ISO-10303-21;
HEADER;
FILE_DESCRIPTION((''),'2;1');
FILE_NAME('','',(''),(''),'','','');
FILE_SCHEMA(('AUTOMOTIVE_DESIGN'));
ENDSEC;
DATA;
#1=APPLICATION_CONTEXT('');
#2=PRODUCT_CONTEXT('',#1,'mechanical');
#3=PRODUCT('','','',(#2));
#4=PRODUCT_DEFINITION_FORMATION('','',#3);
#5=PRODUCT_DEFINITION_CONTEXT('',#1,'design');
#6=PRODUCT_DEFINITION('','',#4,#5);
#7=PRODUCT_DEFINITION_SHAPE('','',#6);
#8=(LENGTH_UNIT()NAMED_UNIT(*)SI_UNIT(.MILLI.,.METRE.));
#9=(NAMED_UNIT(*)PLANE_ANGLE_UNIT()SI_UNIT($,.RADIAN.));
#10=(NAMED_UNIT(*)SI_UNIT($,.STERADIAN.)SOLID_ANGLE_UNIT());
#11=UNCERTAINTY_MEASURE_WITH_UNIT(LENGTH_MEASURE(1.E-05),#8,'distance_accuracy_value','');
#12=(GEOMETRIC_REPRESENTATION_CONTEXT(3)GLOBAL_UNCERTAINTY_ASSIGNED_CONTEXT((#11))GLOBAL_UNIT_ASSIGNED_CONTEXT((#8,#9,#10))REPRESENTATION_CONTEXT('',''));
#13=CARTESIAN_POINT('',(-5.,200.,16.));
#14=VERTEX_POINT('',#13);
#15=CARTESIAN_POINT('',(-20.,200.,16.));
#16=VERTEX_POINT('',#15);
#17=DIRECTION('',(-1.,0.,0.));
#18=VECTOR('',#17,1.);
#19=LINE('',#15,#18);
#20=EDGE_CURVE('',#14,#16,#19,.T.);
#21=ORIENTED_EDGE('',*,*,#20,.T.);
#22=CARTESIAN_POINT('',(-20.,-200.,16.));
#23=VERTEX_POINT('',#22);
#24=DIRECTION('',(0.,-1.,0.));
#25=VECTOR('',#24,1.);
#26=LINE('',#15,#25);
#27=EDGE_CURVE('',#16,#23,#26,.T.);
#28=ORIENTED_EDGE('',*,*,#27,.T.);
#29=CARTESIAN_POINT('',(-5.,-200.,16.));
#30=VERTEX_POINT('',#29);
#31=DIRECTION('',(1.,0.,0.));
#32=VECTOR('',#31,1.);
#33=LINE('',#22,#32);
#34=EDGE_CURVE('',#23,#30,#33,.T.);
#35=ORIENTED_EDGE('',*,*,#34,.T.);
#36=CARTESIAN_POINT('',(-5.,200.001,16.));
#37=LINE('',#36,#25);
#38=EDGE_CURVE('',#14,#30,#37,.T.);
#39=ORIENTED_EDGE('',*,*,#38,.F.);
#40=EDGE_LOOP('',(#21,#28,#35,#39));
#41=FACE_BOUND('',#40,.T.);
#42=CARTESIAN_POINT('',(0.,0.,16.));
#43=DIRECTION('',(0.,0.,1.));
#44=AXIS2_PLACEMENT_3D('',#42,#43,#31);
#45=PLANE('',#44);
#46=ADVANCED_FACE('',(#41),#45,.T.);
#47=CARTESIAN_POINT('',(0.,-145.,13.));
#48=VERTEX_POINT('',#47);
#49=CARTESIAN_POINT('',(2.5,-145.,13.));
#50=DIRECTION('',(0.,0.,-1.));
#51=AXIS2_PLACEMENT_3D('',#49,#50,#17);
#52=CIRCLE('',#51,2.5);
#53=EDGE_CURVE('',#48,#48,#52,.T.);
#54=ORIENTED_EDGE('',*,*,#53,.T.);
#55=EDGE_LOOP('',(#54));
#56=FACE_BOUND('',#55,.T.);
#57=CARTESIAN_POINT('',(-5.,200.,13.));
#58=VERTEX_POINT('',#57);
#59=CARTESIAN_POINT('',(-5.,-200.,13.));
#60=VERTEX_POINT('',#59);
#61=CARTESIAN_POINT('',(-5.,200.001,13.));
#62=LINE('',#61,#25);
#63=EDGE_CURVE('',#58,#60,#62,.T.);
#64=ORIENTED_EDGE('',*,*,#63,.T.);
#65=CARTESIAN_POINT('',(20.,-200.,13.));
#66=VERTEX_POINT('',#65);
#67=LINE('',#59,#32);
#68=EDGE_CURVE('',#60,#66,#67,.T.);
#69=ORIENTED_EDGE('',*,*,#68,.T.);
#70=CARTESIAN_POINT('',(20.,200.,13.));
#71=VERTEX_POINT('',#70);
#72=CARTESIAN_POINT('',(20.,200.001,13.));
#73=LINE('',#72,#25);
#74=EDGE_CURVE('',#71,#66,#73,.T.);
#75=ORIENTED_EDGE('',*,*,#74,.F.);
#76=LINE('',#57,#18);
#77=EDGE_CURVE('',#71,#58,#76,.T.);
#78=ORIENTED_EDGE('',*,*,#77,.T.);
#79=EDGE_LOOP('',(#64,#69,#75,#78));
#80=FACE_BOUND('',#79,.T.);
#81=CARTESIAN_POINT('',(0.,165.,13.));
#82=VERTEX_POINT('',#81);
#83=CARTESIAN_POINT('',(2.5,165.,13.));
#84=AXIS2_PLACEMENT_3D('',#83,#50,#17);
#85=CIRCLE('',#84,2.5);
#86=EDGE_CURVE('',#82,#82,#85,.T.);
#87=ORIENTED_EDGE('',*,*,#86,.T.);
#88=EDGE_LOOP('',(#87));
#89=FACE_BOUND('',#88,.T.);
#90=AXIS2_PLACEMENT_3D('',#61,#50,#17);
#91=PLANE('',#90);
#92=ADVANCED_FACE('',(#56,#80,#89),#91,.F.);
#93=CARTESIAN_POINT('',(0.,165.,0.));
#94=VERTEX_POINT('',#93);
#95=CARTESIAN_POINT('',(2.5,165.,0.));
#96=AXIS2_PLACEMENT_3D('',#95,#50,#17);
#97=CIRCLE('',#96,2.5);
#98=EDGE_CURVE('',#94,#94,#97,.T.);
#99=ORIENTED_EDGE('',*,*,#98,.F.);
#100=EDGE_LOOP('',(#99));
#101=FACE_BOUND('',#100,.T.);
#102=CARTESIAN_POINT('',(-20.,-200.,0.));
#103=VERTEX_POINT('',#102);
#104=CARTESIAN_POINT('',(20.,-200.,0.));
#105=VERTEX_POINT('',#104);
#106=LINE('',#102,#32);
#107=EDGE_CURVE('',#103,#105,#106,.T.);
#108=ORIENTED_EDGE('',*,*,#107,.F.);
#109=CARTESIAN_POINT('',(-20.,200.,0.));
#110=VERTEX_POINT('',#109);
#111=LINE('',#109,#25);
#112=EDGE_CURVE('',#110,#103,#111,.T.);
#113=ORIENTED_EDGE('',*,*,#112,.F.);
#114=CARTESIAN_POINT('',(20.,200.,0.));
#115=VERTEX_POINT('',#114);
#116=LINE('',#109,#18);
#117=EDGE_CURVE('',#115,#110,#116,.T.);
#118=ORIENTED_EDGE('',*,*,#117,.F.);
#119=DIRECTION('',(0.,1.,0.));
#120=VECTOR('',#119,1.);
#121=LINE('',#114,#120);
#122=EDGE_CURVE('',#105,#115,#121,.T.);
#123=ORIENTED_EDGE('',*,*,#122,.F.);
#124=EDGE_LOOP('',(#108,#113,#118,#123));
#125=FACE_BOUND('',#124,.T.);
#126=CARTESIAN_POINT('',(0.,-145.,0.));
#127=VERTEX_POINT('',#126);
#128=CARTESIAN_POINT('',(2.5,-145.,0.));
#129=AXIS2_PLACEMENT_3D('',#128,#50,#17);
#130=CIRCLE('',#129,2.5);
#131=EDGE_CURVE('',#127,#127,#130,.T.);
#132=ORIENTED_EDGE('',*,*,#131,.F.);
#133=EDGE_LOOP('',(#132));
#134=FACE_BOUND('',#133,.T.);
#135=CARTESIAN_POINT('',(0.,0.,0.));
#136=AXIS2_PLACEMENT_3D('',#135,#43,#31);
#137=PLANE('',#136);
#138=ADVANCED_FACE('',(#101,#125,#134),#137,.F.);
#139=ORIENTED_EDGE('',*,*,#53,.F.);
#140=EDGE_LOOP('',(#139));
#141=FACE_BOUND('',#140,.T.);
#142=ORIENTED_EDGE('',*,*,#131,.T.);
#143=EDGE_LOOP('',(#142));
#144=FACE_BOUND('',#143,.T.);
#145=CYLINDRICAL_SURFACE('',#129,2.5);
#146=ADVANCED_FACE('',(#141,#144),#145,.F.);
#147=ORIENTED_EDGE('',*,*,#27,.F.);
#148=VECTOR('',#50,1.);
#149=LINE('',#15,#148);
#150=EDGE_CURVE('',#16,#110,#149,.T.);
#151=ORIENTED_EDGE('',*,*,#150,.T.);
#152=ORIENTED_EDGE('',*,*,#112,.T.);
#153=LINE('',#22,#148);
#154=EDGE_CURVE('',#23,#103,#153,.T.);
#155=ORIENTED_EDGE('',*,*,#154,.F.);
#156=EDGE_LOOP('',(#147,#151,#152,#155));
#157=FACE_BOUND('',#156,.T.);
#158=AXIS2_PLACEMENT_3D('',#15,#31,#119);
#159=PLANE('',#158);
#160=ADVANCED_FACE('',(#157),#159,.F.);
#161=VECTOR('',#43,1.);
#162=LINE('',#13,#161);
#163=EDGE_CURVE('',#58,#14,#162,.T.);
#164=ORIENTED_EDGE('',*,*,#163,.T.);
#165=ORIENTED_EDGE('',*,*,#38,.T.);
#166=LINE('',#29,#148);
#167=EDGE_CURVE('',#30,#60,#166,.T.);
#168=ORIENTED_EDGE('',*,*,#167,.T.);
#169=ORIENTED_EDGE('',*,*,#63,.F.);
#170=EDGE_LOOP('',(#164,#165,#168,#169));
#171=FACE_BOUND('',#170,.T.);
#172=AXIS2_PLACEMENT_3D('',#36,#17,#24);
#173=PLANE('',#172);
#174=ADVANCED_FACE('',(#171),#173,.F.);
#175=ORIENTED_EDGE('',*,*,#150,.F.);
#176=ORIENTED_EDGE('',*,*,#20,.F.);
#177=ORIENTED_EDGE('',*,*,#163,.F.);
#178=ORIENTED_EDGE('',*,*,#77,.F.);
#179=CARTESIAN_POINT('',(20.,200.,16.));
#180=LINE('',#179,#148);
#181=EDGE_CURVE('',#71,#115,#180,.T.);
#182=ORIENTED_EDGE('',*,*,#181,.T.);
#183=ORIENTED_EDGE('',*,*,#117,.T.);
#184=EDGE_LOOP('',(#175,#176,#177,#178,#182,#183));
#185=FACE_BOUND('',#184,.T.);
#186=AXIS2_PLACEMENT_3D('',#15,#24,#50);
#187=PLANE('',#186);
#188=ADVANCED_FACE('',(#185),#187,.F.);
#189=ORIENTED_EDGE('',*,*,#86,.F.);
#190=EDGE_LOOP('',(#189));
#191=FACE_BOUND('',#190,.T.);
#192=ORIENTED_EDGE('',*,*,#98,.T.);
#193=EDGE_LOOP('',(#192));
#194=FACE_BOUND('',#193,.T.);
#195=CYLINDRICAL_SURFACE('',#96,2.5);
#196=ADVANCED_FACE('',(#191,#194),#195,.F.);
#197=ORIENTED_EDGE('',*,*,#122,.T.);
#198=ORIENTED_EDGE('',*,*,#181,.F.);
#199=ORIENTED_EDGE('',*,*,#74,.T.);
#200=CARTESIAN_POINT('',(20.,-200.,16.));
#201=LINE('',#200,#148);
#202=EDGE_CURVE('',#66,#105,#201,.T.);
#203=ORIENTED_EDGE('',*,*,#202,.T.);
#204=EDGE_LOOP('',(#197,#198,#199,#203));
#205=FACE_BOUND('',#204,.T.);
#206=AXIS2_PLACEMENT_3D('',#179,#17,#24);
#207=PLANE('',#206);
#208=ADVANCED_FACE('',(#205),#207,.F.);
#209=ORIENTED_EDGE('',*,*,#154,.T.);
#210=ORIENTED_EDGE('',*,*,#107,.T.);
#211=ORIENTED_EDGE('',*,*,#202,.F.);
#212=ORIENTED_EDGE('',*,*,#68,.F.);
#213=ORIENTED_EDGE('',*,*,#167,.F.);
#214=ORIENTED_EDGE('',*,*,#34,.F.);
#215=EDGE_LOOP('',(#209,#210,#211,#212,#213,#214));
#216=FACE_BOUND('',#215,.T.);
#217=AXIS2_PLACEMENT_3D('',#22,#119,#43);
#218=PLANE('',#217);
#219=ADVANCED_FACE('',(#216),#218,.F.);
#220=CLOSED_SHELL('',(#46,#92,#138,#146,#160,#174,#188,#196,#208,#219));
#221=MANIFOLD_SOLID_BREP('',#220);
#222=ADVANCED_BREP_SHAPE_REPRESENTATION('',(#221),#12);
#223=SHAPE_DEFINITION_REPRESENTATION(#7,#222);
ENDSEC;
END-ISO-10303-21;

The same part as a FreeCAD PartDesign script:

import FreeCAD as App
import Part
import Sketcher

doc = App.newDocument("Part")
body = doc.addObject("PartDesign::Body", "Body")

sketch1 = doc.addObject("Sketcher::SketchObject", "Sketch")
body.addObject(sketch1)
sketch1.AttachmentSupport = (doc.XY_Plane, [""])
sketch1.MapMode = "FlatFace"
sketch1.addGeometry(Part.LineSegment(App.Vector(-20, 200, 0), App.Vector(-20, -200, 0)), False)
sketch1.addGeometry(Part.LineSegment(App.Vector(-20, -200, 0), App.Vector(20, -200, 0)), False)
sketch1.addGeometry(Part.LineSegment(App.Vector(20, -200, 0), App.Vector(20, 200, 0)), False)
sketch1.addGeometry(Part.LineSegment(App.Vector(20, 200, 0), App.Vector(-20, 200, 0)), False)
sketch1.addConstraint(Sketcher.Constraint("Coincident", 0, 2, 1, 1))
sketch1.addConstraint(Sketcher.Constraint("Coincident", 1, 2, 2, 1))
sketch1.addConstraint(Sketcher.Constraint("Coincident", 2, 2, 3, 1))
sketch1.addConstraint(Sketcher.Constraint("Coincident", 3, 2, 0, 1))
sketch1.addConstraint(Sketcher.Constraint("Vertical", 0))
sketch1.addConstraint(Sketcher.Constraint("Horizontal", 1))
sketch1.addConstraint(Sketcher.Constraint("Vertical", 2))
sketch1.addConstraint(Sketcher.Constraint("Horizontal", 3))
sketch1.addConstraint(Sketcher.Constraint("Symmetric", 0, 2, 2, 2, -1, 1))
sketch1.addConstraint(Sketcher.Constraint("DistanceX", 1, 1, 1, 2, 40.0))
sketch1.addConstraint(Sketcher.Constraint("DistanceY", 0, 2, 0, 1, 400.0))
pad1 = doc.addObject("PartDesign::Pad", "Pad")
body.addObject(pad1)
pad1.Profile = sketch1
pad1.Length = 16

sketch2 = doc.addObject("Sketcher::SketchObject", "Sketch001")
body.addObject(sketch2)
sketch2.AttachmentSupport = (doc.XZ_Plane, [""])
sketch2.MapMode = "FlatFace"
sketch2.AttachmentOffset = App.Placement(App.Vector(0, 0, 200), App.Rotation())
sketch2.addGeometry(Part.LineSegment(App.Vector(-5, 16, 0), App.Vector(-5, 13, 0)), False)
sketch2.addGeometry(Part.LineSegment(App.Vector(-5, 13, 0), App.Vector(20, 13, 0)), False)
sketch2.addGeometry(Part.LineSegment(App.Vector(20, 13, 0), App.Vector(20, 16, 0)), False)
sketch2.addGeometry(Part.LineSegment(App.Vector(20, 16, 0), App.Vector(-5, 16, 0)), False)
sketch2.addConstraint(Sketcher.Constraint("Coincident", 0, 2, 1, 1))
sketch2.addConstraint(Sketcher.Constraint("Coincident", 1, 2, 2, 1))
sketch2.addConstraint(Sketcher.Constraint("Coincident", 2, 2, 3, 1))
sketch2.addConstraint(Sketcher.Constraint("Coincident", 3, 2, 0, 1))
sketch2.addConstraint(Sketcher.Constraint("Vertical", 0))
sketch2.addConstraint(Sketcher.Constraint("Horizontal", 1))
sketch2.addConstraint(Sketcher.Constraint("Vertical", 2))
sketch2.addConstraint(Sketcher.Constraint("Horizontal", 3))
sketch2.addConstraint(Sketcher.Constraint("DistanceX", 1, 1, 1, 2, 25.0))
sketch2.addConstraint(Sketcher.Constraint("DistanceY", 0, 2, 0, 1, 3.0))
sketch2.addConstraint(Sketcher.Constraint("DistanceX", 0, 2, -1, 1, 5.0))
sketch2.addConstraint(Sketcher.Constraint("DistanceY", -1, 1, 0, 2, 13.0))
pocket1 = doc.addObject("PartDesign::Pocket", "Pocket")
body.addObject(pocket1)
pocket1.Profile = sketch2
pocket1.Type = "UpToFirst"

sketch3 = doc.addObject("Sketcher::SketchObject", "Sketch002")
body.addObject(sketch3)
sketch3.AttachmentSupport = (doc.XY_Plane, [""])
sketch3.MapMode = "FlatFace"
sketch3.addGeometry(Part.Circle(App.Vector(2.5, 165, 0), App.Vector(0, 0, 1), 2.5), False)
sketch3.addGeometry(Part.Circle(App.Vector(2.5, -145, 0), App.Vector(0, 0, 1), 2.5), False)
sketch3.addConstraint(Sketcher.Constraint("Equal", 0, 1))
sketch3.addConstraint(Sketcher.Constraint("Vertical", 0, 3, 1, 3))
sketch3.addConstraint(Sketcher.Constraint("Diameter", 0, 5.0))
sketch3.addConstraint(Sketcher.Constraint("DistanceY", -1, 1, 0, 3, 165.0))
sketch3.addConstraint(Sketcher.Constraint("DistanceY", 1, 3, -1, 1, 145.0))
sketch3.addConstraint(Sketcher.Constraint("DistanceX", -1, 1, 0, 3, 2.5))
doc.recompute()
hole = doc.addObject("PartDesign::Hole", "Hole")
body.addObject(hole)
hole.Profile = sketch3
hole.ThreadType = "None"
hole.Diameter = 5
hole.DepthType = "ThroughAll"
hole.Reversed = True

doc.recompute()
